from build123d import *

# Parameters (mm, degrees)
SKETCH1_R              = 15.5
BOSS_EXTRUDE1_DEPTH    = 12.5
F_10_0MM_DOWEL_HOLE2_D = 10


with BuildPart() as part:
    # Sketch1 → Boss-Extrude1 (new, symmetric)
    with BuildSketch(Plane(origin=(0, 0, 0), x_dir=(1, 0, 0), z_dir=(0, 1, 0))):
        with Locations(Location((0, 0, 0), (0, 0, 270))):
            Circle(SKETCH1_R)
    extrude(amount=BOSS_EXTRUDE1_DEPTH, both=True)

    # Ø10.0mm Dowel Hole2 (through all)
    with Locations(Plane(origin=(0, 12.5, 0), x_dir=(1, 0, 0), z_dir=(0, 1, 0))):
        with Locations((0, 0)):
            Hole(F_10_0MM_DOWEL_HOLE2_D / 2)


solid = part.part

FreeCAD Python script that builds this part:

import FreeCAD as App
import Part
import Sketcher

V = App.Vector

doc = App.newDocument("Part")
body = doc.addObject("PartDesign::Body", "Body")

sketch1 = body.newObject("Sketcher::SketchObject", "Sketch")
sketch1.AttachmentSupport = (doc.getObject("XZ_Plane"), [""])
sketch1.MapMode = "FlatFace"
sketch1.addGeometry(Part.Circle(V(0, 0, 0), V(0, 0, 1), 16), False)
sketch1.addConstraint([
    Sketcher.Constraint("Coincident", 0, 3, -1, 1),
    Sketcher.Constraint("Diameter", 0, 31.0),
])
pad1 = body.newObject("PartDesign::Pad", "Pad")
pad1.Profile = sketch1
pad1.Length = 25
pad1.Midplane = True

sketch2 = body.newObject("Sketcher::SketchObject", "Sketch001")
sketch2.AttachmentSupport = (doc.getObject("XZ_Plane"), [""])
sketch2.MapMode = "FlatFace"
sketch2.AttachmentOffset = App.Placement(V(0, 0, -12.5), App.Rotation())
sketch2.addGeometry(Part.Circle(V(0, 0, 0), V(0, 0, 1), 5), False)
sketch2.addConstraint([
    Sketcher.Constraint("Coincident", 0, 3, -1, 1),
    Sketcher.Constraint("Diameter", 0, 10.0),
])
doc.recompute()
hole = body.newObject("PartDesign::Hole", "Hole")
hole.Profile = sketch2
hole.ThreadType = "None"
hole.Diameter = 10
hole.DepthType = "ThroughAll"
hole.Reversed = True

doc.recompute()
